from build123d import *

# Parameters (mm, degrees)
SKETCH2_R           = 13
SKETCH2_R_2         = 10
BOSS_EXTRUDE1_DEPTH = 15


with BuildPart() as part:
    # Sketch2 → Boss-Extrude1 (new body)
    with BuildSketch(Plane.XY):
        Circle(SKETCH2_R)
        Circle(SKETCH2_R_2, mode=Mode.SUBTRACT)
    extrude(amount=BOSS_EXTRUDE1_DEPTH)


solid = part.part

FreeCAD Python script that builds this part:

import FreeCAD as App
import Part
import Sketcher

V = App.Vector

doc = App.newDocument("Part")
params = doc.addObject("Spreadsheet::Sheet", "Params")
for row, (alias, value) in enumerate([
    ("sketch1_diameter", "26 mm"),
    ("sketch1_diameter2", "20 mm"),
    ("pad1_length", "15 mm"),
], start=1):
    params.set(f"A{row}", alias)
    params.set(f"B{row}", "=" + value)
    params.setAlias(f"B{row}", alias)

body = doc.addObject("PartDesign::Body", "Body")

# Sketch on XY plane
sketch1 = doc.addObject("Sketcher::SketchObject", "Sketch")
body.addObject(sketch1)
sketch1.AttachmentSupport = (doc.XY_Plane, [""])
sketch1.MapMode = "FlatFace"
sketch1.addGeometry(Part.Circle(V(0, 0, 0), V(0, 0, 1), 13), False)
sketch1.addGeometry(Part.Circle(V(0, 0, 0), V(0, 0, 1), 10), False)
sketch1.addConstraint(Sketcher.Constraint("Coincident", 0, 3, -1, 1))
sketch1.addConstraint(Sketcher.Constraint("Coincident", 1, 3, -1, 1))
sketch1.addConstraint(Sketcher.Constraint("Diameter", 0, 26.0))
sketch1.addConstraint(Sketcher.Constraint("Diameter", 1, 20.0))
sketch1.setExpression("Constraints[2]", "Params.sketch1_diameter")
sketch1.setExpression("Constraints[3]", "Params.sketch1_diameter2")
pad1 = doc.addObject("PartDesign::Pad", "Pad")
body.addObject(pad1)
pad1.Profile = sketch1
pad1.setExpression("Length", "Params.pad1_length")

doc.recompute()
